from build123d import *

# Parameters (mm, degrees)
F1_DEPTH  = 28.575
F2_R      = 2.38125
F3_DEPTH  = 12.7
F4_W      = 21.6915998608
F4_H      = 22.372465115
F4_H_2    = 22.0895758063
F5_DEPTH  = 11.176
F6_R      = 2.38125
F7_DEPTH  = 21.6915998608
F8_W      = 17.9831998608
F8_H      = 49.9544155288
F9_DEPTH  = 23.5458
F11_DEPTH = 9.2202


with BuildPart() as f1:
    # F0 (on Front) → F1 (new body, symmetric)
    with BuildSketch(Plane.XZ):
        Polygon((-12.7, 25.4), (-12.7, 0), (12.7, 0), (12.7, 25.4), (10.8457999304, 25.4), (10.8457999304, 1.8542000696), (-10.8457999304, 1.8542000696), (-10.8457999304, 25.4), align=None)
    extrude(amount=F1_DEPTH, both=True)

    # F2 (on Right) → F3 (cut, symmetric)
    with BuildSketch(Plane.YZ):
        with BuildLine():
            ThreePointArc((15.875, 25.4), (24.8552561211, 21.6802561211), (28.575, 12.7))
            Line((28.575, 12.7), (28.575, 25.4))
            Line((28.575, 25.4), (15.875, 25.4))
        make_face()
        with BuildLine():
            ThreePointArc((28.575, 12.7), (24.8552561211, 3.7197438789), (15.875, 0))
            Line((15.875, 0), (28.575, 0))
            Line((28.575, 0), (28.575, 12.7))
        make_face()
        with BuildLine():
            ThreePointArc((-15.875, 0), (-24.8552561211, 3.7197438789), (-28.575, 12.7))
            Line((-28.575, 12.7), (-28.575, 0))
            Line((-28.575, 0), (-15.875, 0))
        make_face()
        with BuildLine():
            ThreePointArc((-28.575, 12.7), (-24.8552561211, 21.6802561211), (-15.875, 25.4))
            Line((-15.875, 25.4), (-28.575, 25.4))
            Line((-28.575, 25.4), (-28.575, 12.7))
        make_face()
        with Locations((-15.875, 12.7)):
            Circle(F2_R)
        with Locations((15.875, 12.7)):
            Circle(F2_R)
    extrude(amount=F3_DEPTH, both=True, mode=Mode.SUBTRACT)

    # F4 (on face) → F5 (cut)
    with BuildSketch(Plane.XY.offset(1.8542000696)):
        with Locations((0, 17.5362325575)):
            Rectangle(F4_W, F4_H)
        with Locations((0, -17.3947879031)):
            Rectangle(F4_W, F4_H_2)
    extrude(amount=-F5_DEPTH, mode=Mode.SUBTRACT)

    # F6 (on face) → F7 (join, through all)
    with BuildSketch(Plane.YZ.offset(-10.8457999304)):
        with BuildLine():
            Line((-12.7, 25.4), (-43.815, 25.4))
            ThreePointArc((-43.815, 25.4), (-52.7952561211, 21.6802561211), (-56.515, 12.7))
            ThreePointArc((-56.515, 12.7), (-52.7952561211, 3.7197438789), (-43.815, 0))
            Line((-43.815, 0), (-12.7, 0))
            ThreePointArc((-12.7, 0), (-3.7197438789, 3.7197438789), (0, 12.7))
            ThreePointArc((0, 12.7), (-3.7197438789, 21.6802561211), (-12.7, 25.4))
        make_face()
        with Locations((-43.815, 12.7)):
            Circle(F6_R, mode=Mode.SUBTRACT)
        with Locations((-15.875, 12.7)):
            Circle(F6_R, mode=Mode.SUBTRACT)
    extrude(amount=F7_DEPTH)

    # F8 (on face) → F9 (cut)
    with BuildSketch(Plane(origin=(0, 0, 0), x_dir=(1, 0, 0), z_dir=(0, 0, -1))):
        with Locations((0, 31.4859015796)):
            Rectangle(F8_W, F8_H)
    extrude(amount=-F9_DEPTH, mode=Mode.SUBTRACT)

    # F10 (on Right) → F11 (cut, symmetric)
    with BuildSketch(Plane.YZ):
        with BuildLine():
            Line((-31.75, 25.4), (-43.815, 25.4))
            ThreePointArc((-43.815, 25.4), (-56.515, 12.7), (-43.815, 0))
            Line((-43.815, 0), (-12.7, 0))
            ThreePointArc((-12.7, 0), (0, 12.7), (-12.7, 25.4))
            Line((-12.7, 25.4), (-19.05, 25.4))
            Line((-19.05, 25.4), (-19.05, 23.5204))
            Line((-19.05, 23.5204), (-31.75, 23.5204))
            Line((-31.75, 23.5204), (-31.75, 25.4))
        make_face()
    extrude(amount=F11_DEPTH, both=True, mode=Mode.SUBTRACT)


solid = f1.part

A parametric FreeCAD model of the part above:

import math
import FreeCAD as App
import Part
import Sketcher
from FreeCAD import Vector
Q = App.Units.Quantity


def add_polygon(sketch, points):
    """Adds a closed chain of lines whose ends are joined by coincident constraints."""
    first, n = sketch.GeometryCount, len(points)
    for a, b in zip(points, points[1:] + points[:1]):
        sketch.addGeometry(Part.LineSegment(App.Vector(*a, 0), App.Vector(*b, 0)), False)
    for i in range(n):
        sketch.addConstraint(Sketcher.Constraint("Coincident", first + i, 2, first + (i + 1) % n, 1))

doc = App.newDocument("Part")
params = doc.addObject("Spreadsheet::Sheet", "Params")
for row, (alias, value) in enumerate([
    ("sketch1_width", "1 in"),
    ("sketch1_width2", "0.073 in"),
    ("sketch1_height", "0.927 in"),
    ("pad1_length", "2.25 in"),
    ("sketch2_radius", "0.5 in"),
    ("sketch2_diameter", "0.1875 in"),
    ("pocket1_length", "1 in"),
    ("sketch3_width", "0.854 in"),
    ("pocket2_length", "0.44 in"),
    ("sketch4_radius", "0.5 in"),
    ("sketch4_diameter", "0.1875 in"),
    ("sketch4_width", "1.225 in"),
    ("pad2_length", "0.854 in"),
    ("sketch5_width", "0.708 in"),
    ("pocket3_length", "0.927 in"),
    ("sketch6_radius", "0.5 in"),
    ("sketch6_width", "0.5 in"),
    ("sketch6_width2", "0.25 in"),
    ("sketch6_width3", "0.475 in"),
    ("sketch6_height", "0.074 in"),
    ("pocket4_length", "0.726 in"),
], start=1):
    params.set(f"A{row}", alias)
    params.set(f"B{row}", "=" + value)
    params.setAlias(f"B{row}", alias)

body = doc.addObject("PartDesign::Body", "Body")

# Sketch on XZ plane
sketch1 = body.newObject("Sketcher::SketchObject", "Sketch")
sketch1.AttachmentSupport = (doc.getObject("XZ_Plane"), [""])
sketch1.MapMode = "FlatFace"
add_polygon(sketch1, [(-12.7, 25.4), (-12.7, 0), (12.7, 0), (12.7, 25.4), (10.8, 25.4), (10.8, 1.9), (-10.8, 1.9), (-10.8, 25.4)])  # lines 0-7
sketch1.addConstraint([
    Sketcher.Constraint("Vertical", 0),
    Sketcher.Constraint("Horizontal", 1),
    Sketcher.Constraint("Vertical", 2),
    Sketcher.Constraint("Horizontal", 3),
    Sketcher.Constraint("Vertical", 4),
    Sketcher.Constraint("Horizontal", 5),
    Sketcher.Constraint("Vertical", 6),
    Sketcher.Constraint("Horizontal", 7),
    Sketcher.Constraint("Symmetric", 0, 2, 1, 2, -1, 1),
    Sketcher.Constraint("Symmetric", 3, 2, 6, 2, -2),
    Sketcher.Constraint("Equal", 1, 0),
    Sketcher.Constraint("DistanceX", 1, 1, 1, 2, Q("1 in")),
    Sketcher.Constraint("DistanceX", 3, 2, 3, 1, Q("0.073 in")),
    Sketcher.Constraint("DistanceY", 4, 2, 4, 1, Q("0.927 in")),
])
sketch1.setExpression("Constraints[19]", "Params.sketch1_width")
sketch1.setExpression("Constraints[20]", "Params.sketch1_width2")
sketch1.setExpression("Constraints[21]", "Params.sketch1_height")
pad1 = body.newObject("PartDesign::Pad", "Pad")
pad1.Profile = sketch1
pad1.setExpression("Length", "Params.pad1_length")
pad1.Midplane = True

# Sketch on YZ plane
sketch2 = body.newObject("Sketcher::SketchObject", "Sketch001")
sketch2.AttachmentSupport = (doc.getObject("YZ_Plane"), [""])
sketch2.MapMode = "FlatFace"
sketch2.addGeometry([
    Part.ArcOfCircle(Part.Circle(Vector(15.9, 12.7, 0), Vector(0, 0, 1), 12.7), math.radians(0), math.radians(90)),  # 0
    Part.LineSegment(Vector(28.6, 12.7, 0), Vector(28.6, 25.4, 0)),  # 1
    Part.LineSegment(Vector(28.6, 25.4, 0), Vector(15.9, 25.4, 0)),  # 2
    Part.ArcOfCircle(Part.Circle(Vector(15.9, 12.7, 0), Vector(0, 0, 1), 12.7), math.radians(-90), math.radians(0)),  # 3
    Part.LineSegment(Vector(15.9, 0, 0), Vector(28.6, 0, 0)),  # 4
    Part.LineSegment(Vector(28.6, 0, 0), Vector(28.6, 12.7, 0)),  # 5
    Part.ArcOfCircle(Part.Circle(Vector(-15.9, 12.7, 0), Vector(0, 0, 1), 12.7), math.radians(180), math.radians(270)),  # 6
    Part.LineSegment(Vector(-28.6, 12.7, 0), Vector(-28.6, 0, 0)),  # 7
    Part.LineSegment(Vector(-28.6, 0, 0), Vector(-15.9, 0, 0)),  # 8
    Part.ArcOfCircle(Part.Circle(Vector(-15.9, 12.7, 0), Vector(0, 0, 1), 12.7), math.radians(90), math.radians(180)),  # 9
    Part.LineSegment(Vector(-15.9, 25.4, 0), Vector(-28.6, 25.4, 0)),  # 10
    Part.LineSegment(Vector(-28.6, 25.4, 0), Vector(-28.6, 12.7, 0)),  # 11
    Part.Circle(Vector(-15.9, 12.7, 0), Vector(0, 0, 1), 2.4),  # 12
    Part.Circle(Vector(15.9, 12.7, 0), Vector(0, 0, 1), 2.4),  # 13
], False)
sketch2.addConstraint([
    Sketcher.Constraint("Tangent", 0, 1, 1, 1),
    Sketcher.Constraint("Coincident", 1, 2, 2, 1),
    Sketcher.Constraint("Tangent", 2, 2, 0, 2),
    Sketcher.Constraint("Tangent", 3, 1, 4, 1),
    Sketcher.Constraint("Coincident", 4, 2, 5, 1),
    Sketcher.Constraint("Tangent", 5, 2, 3, 2),
    Sketcher.Constraint("Tangent", 6, 1, 7, 1),
    Sketcher.Constraint("Coincident", 7, 2, 8, 1),
    Sketcher.Constraint("Tangent", 8, 2, 6, 2),
    Sketcher.Constraint("Tangent", 9, 1, 10, 1),
    Sketcher.Constraint("Coincident", 10, 2, 11, 1),
    Sketcher.Constraint("Tangent", 11, 2, 9, 2),
    Sketcher.Constraint("Vertical", 1),
    Sketcher.Constraint("Horizontal", 2),
    Sketcher.Constraint("Horizontal", 4),
    Sketcher.Constraint("Vertical", 5),
    Sketcher.Constraint("Vertical", 7),
    Sketcher.Constraint("Horizontal", 8),
    Sketcher.Constraint("Horizontal", 10),
    Sketcher.Constraint("Vertical", 11),
    Sketcher.Constraint("Coincident", 3, 3, 0, 3),
    Sketcher.Constraint("Coincident", 9, 3, 6, 3),
    Sketcher.Constraint("Coincident", 12, 3, 6, 3),
    Sketcher.Constraint("Coincident", 13, 3, 0, 3),
    Sketcher.Constraint("Equal", 0, 3),
    Sketcher.Constraint("Equal", 3, 6),
    Sketcher.Constraint("Equal", 6, 9),
    Sketcher.Constraint("Equal", 12, 13),
    Sketcher.Constraint("Symmetric", 4, 2, 7, 2, -1, 1),
    Sketcher.Constraint("PointOnObject", 3, 1, -1),
    Sketcher.Constraint("Radius", 0, Q("0.5 in")),
    Sketcher.Constraint("Diameter", 12, Q("0.1875 in")),
    Sketcher.Constraint("DistanceX", 6, 3, 0, 3, Q("1.25 in")),
])
sketch2.setExpression("Constraints[30]", "Params.sketch2_radius")
sketch2.setExpression("Constraints[31]", "Params.sketch2_diameter")
pocket1 = body.newObject("PartDesign::Pocket", "Pocket")
pocket1.Profile = sketch2
pocket1.setExpression("Length", "Params.pocket1_length")
pocket1.Midplane = True

# Sketch on XY plane
sketch3 = body.newObject("Sketcher::SketchObject", "Sketch002")
sketch3.AttachmentSupport = (doc.getObject("XY_Plane"), [""])
sketch3.MapMode = "FlatFace"
sketch3.AttachmentOffset = App.Placement(Vector(0, 0, 0.073 * 25.4), App.Rotation())
add_polygon(sketch3, [(-11, 29), (-11, 6), (11, 6), (11, 29)])  # lines 0-3
add_polygon(sketch3, [(-11, -6), (-11, -28), (11, -28), (11, -6)])  # lines 4-7
sketch3.addConstraint([
    Sketcher.Constraint("Vertical", 0),
    Sketcher.Constraint("Horizontal", 1),
    Sketcher.Constraint("Vertical", 2),
    Sketcher.Constraint("Horizontal", 3),
    Sketcher.Constraint("Vertical", 4),
    Sketcher.Constraint("Horizontal", 5),
    Sketcher.Constraint("Vertical", 6),
    Sketcher.Constraint("Horizontal", 7),
    Sketcher.Constraint("Symmetric", 0, 2, 6, 2, -1, 1),
    Sketcher.Constraint("Vertical", 3, 2, 4, 2),
    Sketcher.Constraint("Vertical", 2, 2, 5, 2),
    Sketcher.Constraint("DistanceY", 6, 2, 1, 2, Q("0.5 in")),
    Sketcher.Constraint("DistanceX", 1, 1, 1, 2, Q("0.854 in")),
    Sketcher.Constraint("DistanceY", 0, 2, 0, 1, 22.372465),
    Sketcher.Constraint("DistanceY", 4, 2, 4, 1, 22.089576),
])
sketch3.setExpression("Constraints[20]", "Params.sketch3_width")
pocket2 = body.newObject("PartDesign::Pocket", "Pocket001")
pocket2.Profile = sketch3
pocket2.setExpression("Length", "Params.pocket2_length")

# Sketch on YZ plane
sketch4 = body.newObject("Sketcher::SketchObject", "Sketch003")
sketch4.AttachmentSupport = (doc.getObject("YZ_Plane"), [""])
sketch4.MapMode = "FlatFace"
sketch4.AttachmentOffset = App.Placement(Vector(0, 0, -0.427 * 25.4), App.Rotation())
sketch4.addGeometry([
    Part.LineSegment(Vector(-12.7, 25.4, 0), Vector(-43.8, 25.4, 0)),  # 0
    Part.ArcOfCircle(Part.Circle(Vector(-43.8, 12.7, 0), Vector(0, 0, 1), 12.7), math.radians(90), math.radians(180)),  # 1
    Part.ArcOfCircle(Part.Circle(Vector(-43.8, 12.7, 0), Vector(0, 0, 1), 12.7), math.radians(180), math.radians(270)),  # 2
    Part.LineSegment(Vector(-43.8, 0, 0), Vector(-12.7, 0, 0)),  # 3
    Part.ArcOfCircle(Part.Circle(Vector(-12.7, 12.7, 0), Vector(0, 0, 1), 12.7), math.radians(-90), math.radians(0)),  # 4
    Part.ArcOfCircle(Part.Circle(Vector(-12.7, 12.7, 0), Vector(0, 0, 1), 12.7), math.radians(0), math.radians(90)),  # 5
    Part.Circle(Vector(-43.8, 12.7, 0), Vector(0, 0, 1), 2.4),  # 6
    Part.Circle(Vector(-15.9, 12.7, 0), Vector(0, 0, 1), 2.4),  # 7
], False)
sketch4.addConstraint([
    Sketcher.Constraint("Tangent", 0, 2, 1, 1),
    Sketcher.Constraint("Tangent", 1, 2, 2, 1),
    Sketcher.Constraint("Tangent", 2, 2, 3, 1),
    Sketcher.Constraint("Tangent", 3, 2, 4, 1),
    Sketcher.Constraint("Tangent", 4, 2, 5, 1),
    Sketcher.Constraint("Tangent", 5, 2, 0, 1),
    Sketcher.Constraint("Horizontal", 0),
    Sketcher.Constraint("Horizontal", 3),
    Sketcher.Constraint("Coincident", 6, 3, 1, 3),
    Sketcher.Constraint("Equal", 1, 2),
    Sketcher.Constraint("Equal", 2, 4),
    Sketcher.Constraint("Equal", 6, 7),
    Sketcher.Constraint("PointOnObject", 2, 2, -1),
    Sketcher.Constraint("PointOnObject", 4, 2, -2),
    Sketcher.Constraint("Horizontal", 6, 3, 7, 3),
    Sketcher.Constraint("Horizontal", 7, 3, 1, 2),
    Sketcher.Constraint("Horizontal", 1, 2, 4, 2),
    Sketcher.Constraint("Radius", 1, Q("0.5 in")),
    Sketcher.Constraint("Diameter", 6, Q("0.1875 in")),
    Sketcher.Constraint("DistanceX", 1, 3, 7, 3, Q("1.1 in")),
    Sketcher.Constraint("DistanceX", 0, 2, 0, 1, Q("1.225 in")),
])
sketch4.setExpression("Constraints[17]", "Params.sketch4_radius")
sketch4.setExpression("Constraints[18]", "Params.sketch4_diameter")
sketch4.setExpression("Constraints[20]", "Params.sketch4_width")
pad2 = body.newObject("PartDesign::Pad", "Pad001")
pad2.Profile = sketch4
pad2.setExpression("Length", "Params.pad2_length")

# Sketch on XY plane
sketch5 = body.newObject("Sketcher::SketchObject", "Sketch004")
sketch5.AttachmentSupport = (doc.getObject("XY_Plane"), [""])
sketch5.MapMode = "FlatFace"
add_polygon(sketch5, [(-9, -56), (-9, -7), (9, -7), (9, -56)])  # lines 0-3
sketch5.addConstraint([
    Sketcher.Constraint("Vertical", 0),
    Sketcher.Constraint("Horizontal", 1),
    Sketcher.Constraint("Vertical", 2),
    Sketcher.Constraint("Horizontal", 3),
    Sketcher.Constraint("DistanceX", 1, 1, 1, 2, Q("0.708 in")),
    Sketcher.Constraint("DistanceX", 0, 2, -1, 1, Q("0.354 in")),
    Sketcher.Constraint("DistanceY", 0, 1, 0, 2, 49.954416),
    Sketcher.Constraint("DistanceY", 2, 2, -1, 1, 56.463109),
])
sketch5.setExpression("Constraints[8]", "Params.sketch5_width")
pocket3 = body.newObject("PartDesign::Pocket", "Pocket002")
pocket3.Profile = sketch5
pocket3.setExpression("Length", "Params.pocket3_length")
pocket3.Reversed = True

# Sketch on YZ plane
sketch6 = body.newObject("Sketcher::SketchObject", "Sketch005")
sketch6.AttachmentSupport = (doc.getObject("YZ_Plane"), [""])
sketch6.MapMode = "FlatFace"
sketch6.addGeometry([
    Part.LineSegment(Vector(-31.8, 25.4, 0), Vector(-43.8, 25.4, 0)),  # 0
    Part.ArcOfCircle(Part.Circle(Vector(-43.8, 12.7, 0), Vector(0, 0, 1), 12.7), math.radians(90), math.radians(270)),  # 1
    Part.LineSegment(Vector(-43.8, 0, 0), Vector(-12.7, 0, 0)),  # 2
    Part.ArcOfCircle(Part.Circle(Vector(-12.7, 12.7, 0), Vector(0, 0, 1), 12.7), math.radians(-90), math.radians(90)),  # 3
    Part.LineSegment(Vector(-12.7, 25.4, 0), Vector(-19.1, 25.4, 0)),  # 4
    Part.LineSegment(Vector(-19.1, 25.4, 0), Vector(-19.1, 23.5, 0)),  # 5
    Part.LineSegment(Vector(-19.1, 23.5, 0), Vector(-31.8, 23.5, 0)),  # 6
    Part.LineSegment(Vector(-31.8, 23.5, 0), Vector(-31.8, 25.4, 0)),  # 7
], False)
sketch6.addConstraint([
    Sketcher.Constraint("Tangent", 0, 2, 1, 1),
    Sketcher.Constraint("Tangent", 1, 2, 2, 1),
    Sketcher.Constraint("Tangent", 2, 2, 3, 1),
    Sketcher.Constraint("Tangent", 3, 2, 4, 1),
    Sketcher.Constraint("Coincident", 4, 2, 5, 1),
    Sketcher.Constraint("Coincident", 5, 2, 6, 1),
    Sketcher.Constraint("Coincident", 6, 2, 7, 1),
    Sketcher.Constraint("Coincident", 7, 2, 0, 1),
    Sketcher.Constraint("Horizontal", 0),
    Sketcher.Constraint("Horizontal", 2),
    Sketcher.Constraint("Horizontal", 4),
    Sketcher.Constraint("Vertical", 5),
    Sketcher.Constraint("Horizontal", 6),
    Sketcher.Constraint("Vertical", 7),
    Sketcher.Constraint("Equal", 1, 3),
    Sketcher.Constraint("PointOnObject", 1, 2, -1),
    Sketcher.Constraint("Radius", 1, Q("0.5 in")),
    Sketcher.Constraint("DistanceX", 6, 2, 6, 1, Q("0.5 in")),
    Sketcher.Constraint("DistanceX", 4, 2, 4, 1, Q("0.25 in")),
    Sketcher.Constraint("DistanceX", 3, 3, -1, 1, Q("0.5 in")),
    Sketcher.Constraint("DistanceX", 0, 2, 0, 1, Q("0.475 in")),
    Sketcher.Constraint("DistanceY", 5, 2, 5, 1, Q("0.074 in")),
])
sketch6.setExpression("Constraints[16]", "Params.sketch6_radius")
sketch6.setExpression("Constraints[17]", "Params.sketch6_width")
sketch6.setExpression("Constraints[18]", "Params.sketch6_width2")
sketch6.setExpression("Constraints[20]", "Params.sketch6_width3")
sketch6.setExpression("Constraints[21]", "Params.sketch6_height")
pocket4 = body.newObject("PartDesign::Pocket", "Pocket003")
pocket4.Profile = sketch6
pocket4.setExpression("Length", "Params.pocket4_length")
pocket4.Midplane = True

doc.recompute()
